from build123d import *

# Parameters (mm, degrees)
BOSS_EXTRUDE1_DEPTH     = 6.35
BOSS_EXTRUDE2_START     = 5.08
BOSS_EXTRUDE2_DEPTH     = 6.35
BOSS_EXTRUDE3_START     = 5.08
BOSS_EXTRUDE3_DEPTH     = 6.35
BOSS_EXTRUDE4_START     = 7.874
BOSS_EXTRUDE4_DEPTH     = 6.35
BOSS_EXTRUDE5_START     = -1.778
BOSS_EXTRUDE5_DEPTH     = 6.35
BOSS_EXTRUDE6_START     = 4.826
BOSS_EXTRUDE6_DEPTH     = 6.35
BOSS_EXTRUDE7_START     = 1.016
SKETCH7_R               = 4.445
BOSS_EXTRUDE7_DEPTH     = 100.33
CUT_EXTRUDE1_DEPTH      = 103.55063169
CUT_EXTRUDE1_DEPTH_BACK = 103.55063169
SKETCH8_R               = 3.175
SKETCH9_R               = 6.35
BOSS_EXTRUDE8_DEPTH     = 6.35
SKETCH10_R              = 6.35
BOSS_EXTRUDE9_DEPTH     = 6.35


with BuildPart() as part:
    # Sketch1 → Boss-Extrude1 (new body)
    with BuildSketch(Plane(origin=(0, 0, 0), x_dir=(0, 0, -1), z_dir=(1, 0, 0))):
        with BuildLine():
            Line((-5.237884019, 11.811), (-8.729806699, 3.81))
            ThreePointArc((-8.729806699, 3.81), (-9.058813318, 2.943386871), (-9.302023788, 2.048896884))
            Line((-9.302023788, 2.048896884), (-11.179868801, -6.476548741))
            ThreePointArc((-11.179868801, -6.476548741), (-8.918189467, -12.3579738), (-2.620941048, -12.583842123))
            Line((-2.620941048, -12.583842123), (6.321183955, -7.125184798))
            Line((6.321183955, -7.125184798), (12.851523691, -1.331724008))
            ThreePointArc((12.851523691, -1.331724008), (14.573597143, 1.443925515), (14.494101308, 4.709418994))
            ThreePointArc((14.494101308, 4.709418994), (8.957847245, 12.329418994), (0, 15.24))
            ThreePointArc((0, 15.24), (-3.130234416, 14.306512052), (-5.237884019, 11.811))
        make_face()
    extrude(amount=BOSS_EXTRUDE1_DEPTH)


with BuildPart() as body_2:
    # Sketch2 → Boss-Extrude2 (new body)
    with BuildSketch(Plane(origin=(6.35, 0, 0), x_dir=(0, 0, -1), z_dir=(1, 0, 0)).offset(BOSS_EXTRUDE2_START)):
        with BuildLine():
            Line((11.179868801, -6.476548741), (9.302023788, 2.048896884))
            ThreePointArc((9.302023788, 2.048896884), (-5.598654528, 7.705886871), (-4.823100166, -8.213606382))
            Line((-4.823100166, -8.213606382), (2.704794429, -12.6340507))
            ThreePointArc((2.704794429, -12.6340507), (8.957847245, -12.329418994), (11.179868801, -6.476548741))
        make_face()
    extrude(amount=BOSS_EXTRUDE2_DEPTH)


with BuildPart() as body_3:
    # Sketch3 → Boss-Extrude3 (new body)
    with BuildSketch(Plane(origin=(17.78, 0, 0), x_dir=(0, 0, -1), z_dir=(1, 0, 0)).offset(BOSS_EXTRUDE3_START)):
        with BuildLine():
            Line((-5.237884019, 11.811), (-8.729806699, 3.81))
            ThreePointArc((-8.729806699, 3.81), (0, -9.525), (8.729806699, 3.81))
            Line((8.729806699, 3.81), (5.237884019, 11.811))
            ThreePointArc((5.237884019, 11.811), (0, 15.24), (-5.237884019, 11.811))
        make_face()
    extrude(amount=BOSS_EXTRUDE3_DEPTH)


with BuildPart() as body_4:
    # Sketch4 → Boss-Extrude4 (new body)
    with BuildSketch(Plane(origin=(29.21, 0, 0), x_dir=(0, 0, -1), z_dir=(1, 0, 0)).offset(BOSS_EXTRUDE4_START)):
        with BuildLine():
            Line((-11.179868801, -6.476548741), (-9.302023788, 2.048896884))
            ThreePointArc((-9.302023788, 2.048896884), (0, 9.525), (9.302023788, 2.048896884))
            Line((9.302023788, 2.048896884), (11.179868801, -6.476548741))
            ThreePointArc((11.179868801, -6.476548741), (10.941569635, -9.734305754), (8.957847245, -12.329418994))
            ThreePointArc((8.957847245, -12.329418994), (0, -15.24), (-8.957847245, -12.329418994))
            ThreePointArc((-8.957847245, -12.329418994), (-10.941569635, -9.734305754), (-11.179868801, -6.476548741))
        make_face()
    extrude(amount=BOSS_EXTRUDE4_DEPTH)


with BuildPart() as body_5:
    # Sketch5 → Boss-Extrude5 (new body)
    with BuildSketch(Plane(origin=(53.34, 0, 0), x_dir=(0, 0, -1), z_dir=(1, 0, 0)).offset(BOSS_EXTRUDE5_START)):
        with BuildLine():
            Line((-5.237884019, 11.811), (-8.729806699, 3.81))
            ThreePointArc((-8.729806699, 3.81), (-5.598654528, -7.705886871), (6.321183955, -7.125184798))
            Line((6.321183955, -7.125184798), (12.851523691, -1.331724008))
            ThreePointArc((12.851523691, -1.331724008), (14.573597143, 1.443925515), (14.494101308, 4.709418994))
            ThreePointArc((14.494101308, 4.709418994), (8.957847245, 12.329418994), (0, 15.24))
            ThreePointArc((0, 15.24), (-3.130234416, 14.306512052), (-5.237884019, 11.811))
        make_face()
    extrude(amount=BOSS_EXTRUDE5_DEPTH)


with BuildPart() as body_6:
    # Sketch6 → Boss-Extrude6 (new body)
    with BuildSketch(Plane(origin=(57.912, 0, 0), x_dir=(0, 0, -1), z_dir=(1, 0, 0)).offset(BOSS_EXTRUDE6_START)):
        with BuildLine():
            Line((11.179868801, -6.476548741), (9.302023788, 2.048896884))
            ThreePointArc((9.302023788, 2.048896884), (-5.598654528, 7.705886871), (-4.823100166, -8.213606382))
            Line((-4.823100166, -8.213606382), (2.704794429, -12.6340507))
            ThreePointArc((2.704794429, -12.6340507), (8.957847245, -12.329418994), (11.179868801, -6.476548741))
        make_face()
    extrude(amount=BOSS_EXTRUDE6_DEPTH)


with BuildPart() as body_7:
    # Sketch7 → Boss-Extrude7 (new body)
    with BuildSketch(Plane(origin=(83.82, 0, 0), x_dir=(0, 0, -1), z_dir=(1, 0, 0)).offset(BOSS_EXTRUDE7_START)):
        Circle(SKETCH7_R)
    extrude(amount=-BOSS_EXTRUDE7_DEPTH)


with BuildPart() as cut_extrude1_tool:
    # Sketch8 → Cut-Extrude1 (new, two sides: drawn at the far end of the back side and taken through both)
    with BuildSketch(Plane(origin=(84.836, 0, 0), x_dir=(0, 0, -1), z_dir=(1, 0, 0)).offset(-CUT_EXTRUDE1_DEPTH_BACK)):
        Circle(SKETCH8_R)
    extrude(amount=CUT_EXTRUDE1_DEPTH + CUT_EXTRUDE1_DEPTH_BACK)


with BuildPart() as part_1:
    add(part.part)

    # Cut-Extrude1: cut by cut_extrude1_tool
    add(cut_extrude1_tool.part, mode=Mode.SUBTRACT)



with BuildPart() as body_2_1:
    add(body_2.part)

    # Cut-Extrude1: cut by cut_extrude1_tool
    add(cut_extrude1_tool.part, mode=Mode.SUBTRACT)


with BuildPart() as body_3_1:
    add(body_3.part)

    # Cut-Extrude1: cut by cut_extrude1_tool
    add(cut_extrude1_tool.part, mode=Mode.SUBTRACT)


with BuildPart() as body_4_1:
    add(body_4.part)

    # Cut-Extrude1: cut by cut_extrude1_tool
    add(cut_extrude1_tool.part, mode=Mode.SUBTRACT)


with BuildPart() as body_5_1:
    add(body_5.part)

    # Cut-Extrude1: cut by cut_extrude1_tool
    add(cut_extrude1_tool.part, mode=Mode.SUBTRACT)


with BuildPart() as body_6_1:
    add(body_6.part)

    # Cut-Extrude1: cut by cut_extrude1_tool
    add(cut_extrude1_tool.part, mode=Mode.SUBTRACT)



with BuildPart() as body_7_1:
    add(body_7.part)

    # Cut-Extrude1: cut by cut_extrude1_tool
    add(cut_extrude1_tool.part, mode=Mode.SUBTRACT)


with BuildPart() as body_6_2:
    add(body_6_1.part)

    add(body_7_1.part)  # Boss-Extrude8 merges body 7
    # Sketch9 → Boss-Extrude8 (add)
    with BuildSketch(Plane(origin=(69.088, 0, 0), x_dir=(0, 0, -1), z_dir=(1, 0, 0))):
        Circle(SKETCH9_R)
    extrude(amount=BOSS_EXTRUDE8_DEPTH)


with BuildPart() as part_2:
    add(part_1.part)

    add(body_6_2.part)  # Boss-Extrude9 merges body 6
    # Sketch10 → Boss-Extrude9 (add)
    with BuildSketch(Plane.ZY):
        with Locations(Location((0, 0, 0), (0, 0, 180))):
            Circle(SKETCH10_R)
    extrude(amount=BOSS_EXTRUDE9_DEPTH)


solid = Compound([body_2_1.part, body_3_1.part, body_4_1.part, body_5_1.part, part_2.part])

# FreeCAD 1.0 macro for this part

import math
import FreeCAD as App
import Part
import Sketcher
Q = App.Units.Quantity

doc = App.newDocument("Part")
body = doc.addObject("PartDesign::Body", "Body")

# Sketch on YZ plane
sketch1 = body.newObject("Sketcher::SketchObject", "Sketch")
sketch1.AttachmentSupport = (doc.getObject("YZ_Plane"), [""])
sketch1.MapMode = "FlatFace"
sketch1.addGeometry([
    Part.LineSegment(App.Vector(11.8, 5.2, 0), App.Vector(3.8, 8.7, 0)),  # 0
    Part.ArcOfCircle(Part.Circle(App.Vector(0, 0, 0), App.Vector(0, 0, 1), 9.5), math.radians(66.42), math.radians(77.58)),  # 1
    Part.LineSegment(App.Vector(2, 9.3, 0), App.Vector(-6.5, 11.2, 0)),  # 2
    Part.ArcOfCircle(Part.Circle(App.Vector(-7.7, 5.6, 0), App.Vector(0, 0, 1), 5.7), math.radians(78), math.radians(211)),  # 3
    Part.LineSegment(App.Vector(-12.6, 2.6, 0), App.Vector(-7.1, -6.3, 0)),  # 4
    Part.LineSegment(App.Vector(-7.1, -6.3, 0), App.Vector(-1.3, -12.9, 0)),  # 5
    Part.ArcOfCircle(Part.Circle(App.Vector(2.9, -9.1, 0), App.Vector(0, 0, 1), 5.7), math.radians(-138), math.radians(-72)),  # 6
    Part.ArcOfCircle(Part.Circle(App.Vector(0, 0, 0), App.Vector(0, 0, 1), 15.2), math.radians(-72), math.radians(0)),  # 7
    Part.ArcOfCircle(Part.Circle(App.Vector(9.5, 0, 0), App.Vector(0, 0, 1), 5.7), math.radians(0), math.radians(66)),  # 8
], False)
sketch1.addConstraint([
    Sketcher.Constraint("Tangent", 0, 2, 1, 1),
    Sketcher.Constraint("Tangent", 1, 2, 2, 1),
    Sketcher.Constraint("Tangent", 2, 2, 3, 1),
    Sketcher.Constraint("Tangent", 3, 2, 4, 1),
    Sketcher.Constraint("Coincident", 4, 2, 5, 1),
    Sketcher.Constraint("Tangent", 5, 2, 6, 1),
    Sketcher.Constraint("Tangent", 6, 2, 7, 1),
    Sketcher.Constraint("Tangent", 7, 2, 8, 1),
    Sketcher.Constraint("Tangent", 8, 2, 0, 1),
    Sketcher.Constraint("Coincident", 1, 3, -1, 1),
    Sketcher.Constraint("Coincident", 7, 3, -1, 1),
    Sketcher.Constraint("Equal", 3, 6),
    Sketcher.Constraint("Equal", 6, 8),
    Sketcher.Constraint("PointOnObject", 8, 3, -1),
    Sketcher.Constraint("Equal", 0, 2),
    Sketcher.Constraint("Equal", 2, 5),
    Sketcher.Constraint("Radius", 7, Q("0.6 in")),
    Sketcher.Constraint("Radius", 1, Q("0.375 in")),
    Sketcher.Constraint("Radius", 3, Q("0.225 in")),
    Sketcher.Constraint("DistanceY", 5, 2, 4, 2, Q("0.2571 in")),
    Sketcher.Constraint("DistanceY", 6, 2, -1, 1, 14.494101),
    Sketcher.Constraint("Distance", 4, 10.476571),
])
pad1 = body.newObject("PartDesign::Pad", "Pad")
pad1.Profile = sketch1
pad1.Length = Q("0.25 in")
body2 = doc.addObject("PartDesign::Body", "Body001")

# Sketch on YZ plane
sketch2 = body2.newObject("Sketcher::SketchObject", "Sketch001")
sketch2.AttachmentSupport = (doc.getObject("YZ_Plane001"), [""])
sketch2.MapMode = "FlatFace"
sketch2.AttachmentOffset = App.Placement(App.Vector(0, 0, 0.45 * 25.4), App.Rotation())
sketch2.addGeometry([
    Part.LineSegment(App.Vector(-6, -11, 0), App.Vector(2, -9, 0)),
    Part.ArcOfCircle(Part.Circle(App.Vector(0, 0, 0), App.Vector(0, 0, 1), 10), math.radians(-78), math.radians(150)),
    Part.LineSegment(App.Vector(-8, 5, 0), App.Vector(-13, -3, 0)),
    Part.ArcOfCircle(Part.Circle(App.Vector(-8, -6, 0), App.Vector(0, 0, 1), 6), math.radians(150), math.radians(282)),
], False)
sketch2.addConstraint([
    Sketcher.Constraint("Tangent", 0, 2, 1, 1),
    Sketcher.Constraint("Tangent", 1, 2, 2, 1),
    Sketcher.Constraint("Tangent", 2, 2, 3, 1),
    Sketcher.Constraint("Tangent", 3, 2, 0, 1),
    Sketcher.Constraint("Coincident", 1, 3, -1, 1),
    Sketcher.Constraint("Radius", 1, Q("0.375 in")),
    Sketcher.Constraint("Radius", 3, Q("0.225 in")),
    Sketcher.Constraint("DistanceY", -1, 1, 1, 2, 4.8231),
    Sketcher.Constraint("DistanceX", 2, 2, 3, 2, 6.157502),
])
pad2 = body2.newObject("PartDesign::Pad", "Pad001")
pad2.Profile = sketch2
pad2.Length = Q("0.25 in")
body3 = doc.addObject("PartDesign::Body", "Body002")

# Sketch on YZ plane
sketch3 = body3.newObject("Sketcher::SketchObject", "Sketch002")
sketch3.AttachmentSupport = (doc.getObject("YZ_Plane002"), [""])
sketch3.MapMode = "FlatFace"
sketch3.AttachmentOffset = App.Placement(App.Vector(0, 0, 0.9 * 25.4), App.Rotation())
sketch3.addGeometry([
    Part.LineSegment(App.Vector(12, 5, 0), App.Vector(4, 9, 0)),
    Part.ArcOfCircle(Part.Circle(App.Vector(0, 0, 0), App.Vector(0, 0, 1), 10), math.radians(66), math.radians(294)),
    Part.LineSegment(App.Vector(4, -9, 0), App.Vector(12, -5, 0)),
    Part.ArcOfCircle(Part.Circle(App.Vector(10, 0, 0), App.Vector(0, 0, 1), 6), math.radians(-66), math.radians(66)),
], False)
sketch3.addConstraint([
    Sketcher.Constraint("Tangent", 0, 2, 1, 1),
    Sketcher.Constraint("Tangent", 1, 2, 2, 1),
    Sketcher.Constraint("Tangent", 2, 2, 3, 1),
    Sketcher.Constraint("Tangent", 3, 2, 0, 1),
    Sketcher.Constraint("Coincident", 1, 3, -1, 1),
    Sketcher.Constraint("PointOnObject", 3, 3, -1),
    Sketcher.Constraint("Radius", 1, Q("0.375 in")),
    Sketcher.Constraint("Radius", 3, Q("0.225 in")),
    Sketcher.Constraint("DistanceX", -1, 1, 0, 2, Q("0.15 in")),
])
pad3 = body3.newObject("PartDesign::Pad", "Pad002")
pad3.Profile = sketch3
pad3.Length = Q("0.25 in")
body4 = doc.addObject("PartDesign::Body", "Body003")

# Sketch on YZ plane
sketch4 = body4.newObject("Sketcher::SketchObject", "Sketch003")
sketch4.AttachmentSupport = (doc.getObject("YZ_Plane003"), [""])
sketch4.MapMode = "FlatFace"
sketch4.AttachmentOffset = App.Placement(App.Vector(0, 0, 1.46 * 25.4), App.Rotation())
sketch4.addGeometry([
    Part.LineSegment(App.Vector(2, 9, 0), App.Vector(-6, 11, 0)),  # 0
    Part.ArcOfCircle(Part.Circle(App.Vector(-8, 6, 0), App.Vector(0, 0, 1), 6), math.radians(78), math.radians(144)),  # 1
    Part.ArcOfCircle(Part.Circle(App.Vector(0, 0, 0), App.Vector(0, 0, 1), 15), math.radians(144), math.radians(216)),  # 2
    Part.ArcOfCircle(Part.Circle(App.Vector(-8, -6, 0), App.Vector(0, 0, 1), 6), math.radians(-144), math.radians(-78)),  # 3
    Part.LineSegment(App.Vector(-6, -11, 0), App.Vector(2, -9, 0)),  # 4
    Part.ArcOfCircle(Part.Circle(App.Vector(0, 0, 0), App.Vector(0, 0, 1), 10), math.radians(-78), math.radians(78)),  # 5
], False)
sketch4.addConstraint([
    Sketcher.Constraint("Tangent", 0, 2, 1, 1),
    Sketcher.Constraint("Tangent", 1, 2, 2, 1),
    Sketcher.Constraint("Tangent", 2, 2, 3, 1),
    Sketcher.Constraint("Tangent", 3, 2, 4, 1),
    Sketcher.Constraint("Tangent", 4, 2, 5, 1),
    Sketcher.Constraint("Tangent", 5, 2, 0, 1),
    Sketcher.Constraint("Coincident", 2, 3, -1, 1),
    Sketcher.Constraint("Coincident", 5, 3, -1, 1),
    Sketcher.Constraint("Equal", 1, 3),
    Sketcher.Constraint("Vertical", 1, 3, 3, 3),
    Sketcher.Constraint("Radius", 2, Q("0.6 in")),
    Sketcher.Constraint("Radius", 1, Q("0.225 in")),
    Sketcher.Constraint("Radius", 5, Q("0.375 in")),
    Sketcher.Constraint("DistanceY", 3, 3, 1, 2, 14.556502),
])
pad4 = body4.newObject("PartDesign::Pad", "Pad003")
pad4.Profile = sketch4
pad4.Length = Q("0.25 in")
body5 = doc.addObject("PartDesign::Body", "Body004")

# Sketch on YZ plane
sketch5 = body5.newObject("Sketcher::SketchObject", "Sketch004")
sketch5.AttachmentSupport = (doc.getObject("YZ_Plane004"), [""])
sketch5.MapMode = "FlatFace"
sketch5.AttachmentOffset = App.Placement(App.Vector(0, 0, 2.03 * 25.4), App.Rotation())
sketch5.addGeometry([
    Part.LineSegment(App.Vector(12, 5, 0), App.Vector(4, 9, 0)),  # 0
    Part.ArcOfCircle(Part.Circle(App.Vector(0, 0, 0), App.Vector(0, 0, 1), 10), math.radians(66), math.radians(222)),  # 1
    Part.LineSegment(App.Vector(-7, -6, 0), App.Vector(-1, -13, 0)),  # 2
    Part.ArcOfCircle(Part.Circle(App.Vector(3, -9, 0), App.Vector(0, 0, 1), 6), math.radians(-138), math.radians(-72)),  # 3
    Part.ArcOfCircle(Part.Circle(App.Vector(0, 0, 0), App.Vector(0, 0, 1), 15), math.radians(-72), math.radians(0)),  # 4
    Part.ArcOfCircle(Part.Circle(App.Vector(10, 0, 0), App.Vector(0, 0, 1), 6), math.radians(0), math.radians(66)),  # 5
], False)
sketch5.addConstraint([
    Sketcher.Constraint("Tangent", 0, 2, 1, 1),
    Sketcher.Constraint("Tangent", 1, 2, 2, 1),
    Sketcher.Constraint("Tangent", 2, 2, 3, 1),
    Sketcher.Constraint("Tangent", 3, 2, 4, 1),
    Sketcher.Constraint("Tangent", 4, 2, 5, 1),
    Sketcher.Constraint("Tangent", 5, 2, 0, 1),
    Sketcher.Constraint("Coincident", 1, 3, -1, 1),
    Sketcher.Constraint("Coincident", 4, 3, -1, 1),
    Sketcher.Constraint("Equal", 3, 5),
    Sketcher.Constraint("PointOnObject", 5, 3, -1),
    Sketcher.Constraint("Radius", 4, Q("0.6 in")),
    Sketcher.Constraint("Radius", 1, Q("0.375 in")),
    Sketcher.Constraint("Radius", 3, Q("0.225 in")),
    Sketcher.Constraint("DistanceY", 2, 2, 1, 2, Q("0.2571 in")),
])
pad5 = body5.newObject("PartDesign::Pad", "Pad004")
pad5.Profile = sketch5
pad5.Length = Q("0.25 in")
body6 = doc.addObject("PartDesign::Body", "Body005")

# Sketch on YZ plane
sketch6 = body6.newObject("Sketcher::SketchObject", "Sketch005")
sketch6.AttachmentSupport = (doc.getObject("YZ_Plane005"), [""])
sketch6.MapMode = "FlatFace"
sketch6.AttachmentOffset = App.Placement(App.Vector(0, 0, 2.47 * 25.4), App.Rotation())
sketch6.addGeometry([
    Part.LineSegment(App.Vector(-6, -11, 0), App.Vector(2, -9, 0)),
    Part.ArcOfCircle(Part.Circle(App.Vector(0, 0, 0), App.Vector(0, 0, 1), 10), math.radians(-78), math.radians(150)),
    Part.LineSegment(App.Vector(-8, 5, 0), App.Vector(-13, -3, 0)),
    Part.ArcOfCircle(Part.Circle(App.Vector(-8, -6, 0), App.Vector(0, 0, 1), 6), math.radians(150), math.radians(282)),
], False)
sketch6.addConstraint([
    Sketcher.Constraint("Tangent", 0, 2, 1, 1),
    Sketcher.Constraint("Tangent", 1, 2, 2, 1),
    Sketcher.Constraint("Tangent", 2, 2, 3, 1),
    Sketcher.Constraint("Tangent", 3, 2, 0, 1),
    Sketcher.Constraint("Coincident", 1, 3, -1, 1),
    Sketcher.Constraint("Radius", 1, Q("0.375 in")),
    Sketcher.Constraint("Radius", 3, Q("0.225 in")),
    Sketcher.Constraint("DistanceY", -1, 1, 1, 2, 4.8231),
    Sketcher.Constraint("DistanceX", 2, 2, 3, 2, 6.157502),
])
pad6 = body6.newObject("PartDesign::Pad", "Pad005")
pad6.Profile = sketch6
pad6.Length = Q("0.25 in")
body7 = doc.addObject("PartDesign::Body", "Body006")

# Sketch on YZ plane
sketch7 = body7.newObject("Sketcher::SketchObject", "Sketch006")
sketch7.AttachmentSupport = (doc.getObject("YZ_Plane006"), [""])
sketch7.MapMode = "FlatFace"
sketch7.AttachmentOffset = App.Placement(App.Vector(0, 0, 3.34 * 25.4), App.Rotation())
sketch7.addGeometry(Part.Circle(App.Vector(0, 0, 0), App.Vector(0, 0, 1), 4.4), False)
sketch7.addConstraint([
    Sketcher.Constraint("Coincident", 0, 3, -1, 1),
    Sketcher.Constraint("Diameter", 0, Q("0.35 in")),
])
pad7 = body7.newObject("PartDesign::Pad", "Pad006")
pad7.Profile = sketch7
pad7.Length = Q("3.95 in")
pad7.Reversed = True
body8 = doc.addObject("PartDesign::Body", "Body007")

# Sketch on YZ plane
sketch8 = body8.newObject("Sketcher::SketchObject", "Sketch007")
sketch8.AttachmentSupport = (doc.getObject("YZ_Plane007"), [""])
sketch8.MapMode = "FlatFace"
sketch8.AttachmentOffset = App.Placement(App.Vector(0, 0, 3.34 * 25.4), App.Rotation())
sketch8.addGeometry(Part.Circle(App.Vector(0, 0, 0), App.Vector(0, 0, 1), 3.2), False)
sketch8.addConstraint([
    Sketcher.Constraint("Coincident", 0, 3, -1, 1),
    Sketcher.Constraint("Diameter", 0, Q("0.25 in")),
])
pad8 = body8.newObject("PartDesign::Pad", "Pad007")
pad8.Profile = sketch8
pad8.Type = "TwoLengths"
pad8.Length = 103.550632
pad8.Length2 = 103.550632
doc.recompute()

body9 = doc.addObject("PartDesign::Body", "Body008")
body9.BaseFeature = body8
boolean = body.newObject("PartDesign::Boolean", "Boolean")
boolean.Type = "Cut"
boolean.addObjects([body9])
doc.recompute()

body10 = doc.addObject("PartDesign::Body", "Body009")
body10.BaseFeature = body8
boolean2 = body2.newObject("PartDesign::Boolean", "Boolean001")
boolean2.Type = "Cut"
boolean2.addObjects([body10])
doc.recompute()

body11 = doc.addObject("PartDesign::Body", "Body010")
body11.BaseFeature = body8
boolean3 = body3.newObject("PartDesign::Boolean", "Boolean002")
boolean3.Type = "Cut"
boolean3.addObjects([body11])
doc.recompute()

body12 = doc.addObject("PartDesign::Body", "Body011")
body12.BaseFeature = body8
boolean4 = body4.newObject("PartDesign::Boolean", "Boolean003")
boolean4.Type = "Cut"
boolean4.addObjects([body12])
doc.recompute()

body13 = doc.addObject("PartDesign::Body", "Body012")
body13.BaseFeature = body8
boolean5 = body5.newObject("PartDesign::Boolean", "Boolean004")
boolean5.Type = "Cut"
boolean5.addObjects([body13])
doc.recompute()

body14 = doc.addObject("PartDesign::Body", "Body013")
body14.BaseFeature = body8
boolean6 = body6.newObject("PartDesign::Boolean", "Boolean005")
boolean6.Type = "Cut"
boolean6.addObjects([body14])
doc.recompute()

boolean7 = body7.newObject("PartDesign::Boolean", "Boolean006")
boolean7.Type = "Cut"
boolean7.addObjects([body8])
doc.recompute()

boolean8 = body6.newObject("PartDesign::Boolean", "Boolean007")
boolean8.Type = "Fuse"
boolean8.addObjects([body7])

# Sketch on YZ plane
sketch9 = body6.newObject("Sketcher::SketchObject", "Sketch008")
sketch9.AttachmentSupport = (doc.getObject("YZ_Plane005"), [""])
sketch9.MapMode = "FlatFace"
sketch9.AttachmentOffset = App.Placement(App.Vector(0, 0, 2.72 * 25.4), App.Rotation())
sketch9.addGeometry(Part.Circle(App.Vector(0, 0, 0), App.Vector(0, 0, 1), 6), False)
sketch9.addConstraint([
    Sketcher.Constraint("Coincident", 0, 3, -1, 1),
    Sketcher.Constraint("Diameter", 0, Q("0.5 in")),
])
pad9 = body6.newObject("PartDesign::Pad", "Pad008")
pad9.Profile = sketch9
pad9.Length = Q("0.25 in")
doc.recompute()

boolean9 = body.newObject("PartDesign::Boolean", "Boolean008")
boolean9.Type = "Fuse"
boolean9.addObjects([body6])

# Sketch on YZ plane
sketch10 = body.newObject("Sketcher::SketchObject", "Sketch009")
sketch10.AttachmentSupport = (doc.getObject("YZ_Plane"), [""])
sketch10.MapMode = "FlatFace"
sketch10.addGeometry(Part.Circle(App.Vector(0, 0, 0), App.Vector(0, 0, 1), 6), False)
sketch10.addConstraint([
    Sketcher.Constraint("Coincident", 0, 3, -1, 1),
    Sketcher.Constraint("Diameter", 0, Q("0.5 in")),
])
pad10 = body.newObject("PartDesign::Pad", "Pad009")
pad10.Profile = sketch10
pad10.Length = Q("0.25 in")
pad10.Reversed = True

doc.recompute()
